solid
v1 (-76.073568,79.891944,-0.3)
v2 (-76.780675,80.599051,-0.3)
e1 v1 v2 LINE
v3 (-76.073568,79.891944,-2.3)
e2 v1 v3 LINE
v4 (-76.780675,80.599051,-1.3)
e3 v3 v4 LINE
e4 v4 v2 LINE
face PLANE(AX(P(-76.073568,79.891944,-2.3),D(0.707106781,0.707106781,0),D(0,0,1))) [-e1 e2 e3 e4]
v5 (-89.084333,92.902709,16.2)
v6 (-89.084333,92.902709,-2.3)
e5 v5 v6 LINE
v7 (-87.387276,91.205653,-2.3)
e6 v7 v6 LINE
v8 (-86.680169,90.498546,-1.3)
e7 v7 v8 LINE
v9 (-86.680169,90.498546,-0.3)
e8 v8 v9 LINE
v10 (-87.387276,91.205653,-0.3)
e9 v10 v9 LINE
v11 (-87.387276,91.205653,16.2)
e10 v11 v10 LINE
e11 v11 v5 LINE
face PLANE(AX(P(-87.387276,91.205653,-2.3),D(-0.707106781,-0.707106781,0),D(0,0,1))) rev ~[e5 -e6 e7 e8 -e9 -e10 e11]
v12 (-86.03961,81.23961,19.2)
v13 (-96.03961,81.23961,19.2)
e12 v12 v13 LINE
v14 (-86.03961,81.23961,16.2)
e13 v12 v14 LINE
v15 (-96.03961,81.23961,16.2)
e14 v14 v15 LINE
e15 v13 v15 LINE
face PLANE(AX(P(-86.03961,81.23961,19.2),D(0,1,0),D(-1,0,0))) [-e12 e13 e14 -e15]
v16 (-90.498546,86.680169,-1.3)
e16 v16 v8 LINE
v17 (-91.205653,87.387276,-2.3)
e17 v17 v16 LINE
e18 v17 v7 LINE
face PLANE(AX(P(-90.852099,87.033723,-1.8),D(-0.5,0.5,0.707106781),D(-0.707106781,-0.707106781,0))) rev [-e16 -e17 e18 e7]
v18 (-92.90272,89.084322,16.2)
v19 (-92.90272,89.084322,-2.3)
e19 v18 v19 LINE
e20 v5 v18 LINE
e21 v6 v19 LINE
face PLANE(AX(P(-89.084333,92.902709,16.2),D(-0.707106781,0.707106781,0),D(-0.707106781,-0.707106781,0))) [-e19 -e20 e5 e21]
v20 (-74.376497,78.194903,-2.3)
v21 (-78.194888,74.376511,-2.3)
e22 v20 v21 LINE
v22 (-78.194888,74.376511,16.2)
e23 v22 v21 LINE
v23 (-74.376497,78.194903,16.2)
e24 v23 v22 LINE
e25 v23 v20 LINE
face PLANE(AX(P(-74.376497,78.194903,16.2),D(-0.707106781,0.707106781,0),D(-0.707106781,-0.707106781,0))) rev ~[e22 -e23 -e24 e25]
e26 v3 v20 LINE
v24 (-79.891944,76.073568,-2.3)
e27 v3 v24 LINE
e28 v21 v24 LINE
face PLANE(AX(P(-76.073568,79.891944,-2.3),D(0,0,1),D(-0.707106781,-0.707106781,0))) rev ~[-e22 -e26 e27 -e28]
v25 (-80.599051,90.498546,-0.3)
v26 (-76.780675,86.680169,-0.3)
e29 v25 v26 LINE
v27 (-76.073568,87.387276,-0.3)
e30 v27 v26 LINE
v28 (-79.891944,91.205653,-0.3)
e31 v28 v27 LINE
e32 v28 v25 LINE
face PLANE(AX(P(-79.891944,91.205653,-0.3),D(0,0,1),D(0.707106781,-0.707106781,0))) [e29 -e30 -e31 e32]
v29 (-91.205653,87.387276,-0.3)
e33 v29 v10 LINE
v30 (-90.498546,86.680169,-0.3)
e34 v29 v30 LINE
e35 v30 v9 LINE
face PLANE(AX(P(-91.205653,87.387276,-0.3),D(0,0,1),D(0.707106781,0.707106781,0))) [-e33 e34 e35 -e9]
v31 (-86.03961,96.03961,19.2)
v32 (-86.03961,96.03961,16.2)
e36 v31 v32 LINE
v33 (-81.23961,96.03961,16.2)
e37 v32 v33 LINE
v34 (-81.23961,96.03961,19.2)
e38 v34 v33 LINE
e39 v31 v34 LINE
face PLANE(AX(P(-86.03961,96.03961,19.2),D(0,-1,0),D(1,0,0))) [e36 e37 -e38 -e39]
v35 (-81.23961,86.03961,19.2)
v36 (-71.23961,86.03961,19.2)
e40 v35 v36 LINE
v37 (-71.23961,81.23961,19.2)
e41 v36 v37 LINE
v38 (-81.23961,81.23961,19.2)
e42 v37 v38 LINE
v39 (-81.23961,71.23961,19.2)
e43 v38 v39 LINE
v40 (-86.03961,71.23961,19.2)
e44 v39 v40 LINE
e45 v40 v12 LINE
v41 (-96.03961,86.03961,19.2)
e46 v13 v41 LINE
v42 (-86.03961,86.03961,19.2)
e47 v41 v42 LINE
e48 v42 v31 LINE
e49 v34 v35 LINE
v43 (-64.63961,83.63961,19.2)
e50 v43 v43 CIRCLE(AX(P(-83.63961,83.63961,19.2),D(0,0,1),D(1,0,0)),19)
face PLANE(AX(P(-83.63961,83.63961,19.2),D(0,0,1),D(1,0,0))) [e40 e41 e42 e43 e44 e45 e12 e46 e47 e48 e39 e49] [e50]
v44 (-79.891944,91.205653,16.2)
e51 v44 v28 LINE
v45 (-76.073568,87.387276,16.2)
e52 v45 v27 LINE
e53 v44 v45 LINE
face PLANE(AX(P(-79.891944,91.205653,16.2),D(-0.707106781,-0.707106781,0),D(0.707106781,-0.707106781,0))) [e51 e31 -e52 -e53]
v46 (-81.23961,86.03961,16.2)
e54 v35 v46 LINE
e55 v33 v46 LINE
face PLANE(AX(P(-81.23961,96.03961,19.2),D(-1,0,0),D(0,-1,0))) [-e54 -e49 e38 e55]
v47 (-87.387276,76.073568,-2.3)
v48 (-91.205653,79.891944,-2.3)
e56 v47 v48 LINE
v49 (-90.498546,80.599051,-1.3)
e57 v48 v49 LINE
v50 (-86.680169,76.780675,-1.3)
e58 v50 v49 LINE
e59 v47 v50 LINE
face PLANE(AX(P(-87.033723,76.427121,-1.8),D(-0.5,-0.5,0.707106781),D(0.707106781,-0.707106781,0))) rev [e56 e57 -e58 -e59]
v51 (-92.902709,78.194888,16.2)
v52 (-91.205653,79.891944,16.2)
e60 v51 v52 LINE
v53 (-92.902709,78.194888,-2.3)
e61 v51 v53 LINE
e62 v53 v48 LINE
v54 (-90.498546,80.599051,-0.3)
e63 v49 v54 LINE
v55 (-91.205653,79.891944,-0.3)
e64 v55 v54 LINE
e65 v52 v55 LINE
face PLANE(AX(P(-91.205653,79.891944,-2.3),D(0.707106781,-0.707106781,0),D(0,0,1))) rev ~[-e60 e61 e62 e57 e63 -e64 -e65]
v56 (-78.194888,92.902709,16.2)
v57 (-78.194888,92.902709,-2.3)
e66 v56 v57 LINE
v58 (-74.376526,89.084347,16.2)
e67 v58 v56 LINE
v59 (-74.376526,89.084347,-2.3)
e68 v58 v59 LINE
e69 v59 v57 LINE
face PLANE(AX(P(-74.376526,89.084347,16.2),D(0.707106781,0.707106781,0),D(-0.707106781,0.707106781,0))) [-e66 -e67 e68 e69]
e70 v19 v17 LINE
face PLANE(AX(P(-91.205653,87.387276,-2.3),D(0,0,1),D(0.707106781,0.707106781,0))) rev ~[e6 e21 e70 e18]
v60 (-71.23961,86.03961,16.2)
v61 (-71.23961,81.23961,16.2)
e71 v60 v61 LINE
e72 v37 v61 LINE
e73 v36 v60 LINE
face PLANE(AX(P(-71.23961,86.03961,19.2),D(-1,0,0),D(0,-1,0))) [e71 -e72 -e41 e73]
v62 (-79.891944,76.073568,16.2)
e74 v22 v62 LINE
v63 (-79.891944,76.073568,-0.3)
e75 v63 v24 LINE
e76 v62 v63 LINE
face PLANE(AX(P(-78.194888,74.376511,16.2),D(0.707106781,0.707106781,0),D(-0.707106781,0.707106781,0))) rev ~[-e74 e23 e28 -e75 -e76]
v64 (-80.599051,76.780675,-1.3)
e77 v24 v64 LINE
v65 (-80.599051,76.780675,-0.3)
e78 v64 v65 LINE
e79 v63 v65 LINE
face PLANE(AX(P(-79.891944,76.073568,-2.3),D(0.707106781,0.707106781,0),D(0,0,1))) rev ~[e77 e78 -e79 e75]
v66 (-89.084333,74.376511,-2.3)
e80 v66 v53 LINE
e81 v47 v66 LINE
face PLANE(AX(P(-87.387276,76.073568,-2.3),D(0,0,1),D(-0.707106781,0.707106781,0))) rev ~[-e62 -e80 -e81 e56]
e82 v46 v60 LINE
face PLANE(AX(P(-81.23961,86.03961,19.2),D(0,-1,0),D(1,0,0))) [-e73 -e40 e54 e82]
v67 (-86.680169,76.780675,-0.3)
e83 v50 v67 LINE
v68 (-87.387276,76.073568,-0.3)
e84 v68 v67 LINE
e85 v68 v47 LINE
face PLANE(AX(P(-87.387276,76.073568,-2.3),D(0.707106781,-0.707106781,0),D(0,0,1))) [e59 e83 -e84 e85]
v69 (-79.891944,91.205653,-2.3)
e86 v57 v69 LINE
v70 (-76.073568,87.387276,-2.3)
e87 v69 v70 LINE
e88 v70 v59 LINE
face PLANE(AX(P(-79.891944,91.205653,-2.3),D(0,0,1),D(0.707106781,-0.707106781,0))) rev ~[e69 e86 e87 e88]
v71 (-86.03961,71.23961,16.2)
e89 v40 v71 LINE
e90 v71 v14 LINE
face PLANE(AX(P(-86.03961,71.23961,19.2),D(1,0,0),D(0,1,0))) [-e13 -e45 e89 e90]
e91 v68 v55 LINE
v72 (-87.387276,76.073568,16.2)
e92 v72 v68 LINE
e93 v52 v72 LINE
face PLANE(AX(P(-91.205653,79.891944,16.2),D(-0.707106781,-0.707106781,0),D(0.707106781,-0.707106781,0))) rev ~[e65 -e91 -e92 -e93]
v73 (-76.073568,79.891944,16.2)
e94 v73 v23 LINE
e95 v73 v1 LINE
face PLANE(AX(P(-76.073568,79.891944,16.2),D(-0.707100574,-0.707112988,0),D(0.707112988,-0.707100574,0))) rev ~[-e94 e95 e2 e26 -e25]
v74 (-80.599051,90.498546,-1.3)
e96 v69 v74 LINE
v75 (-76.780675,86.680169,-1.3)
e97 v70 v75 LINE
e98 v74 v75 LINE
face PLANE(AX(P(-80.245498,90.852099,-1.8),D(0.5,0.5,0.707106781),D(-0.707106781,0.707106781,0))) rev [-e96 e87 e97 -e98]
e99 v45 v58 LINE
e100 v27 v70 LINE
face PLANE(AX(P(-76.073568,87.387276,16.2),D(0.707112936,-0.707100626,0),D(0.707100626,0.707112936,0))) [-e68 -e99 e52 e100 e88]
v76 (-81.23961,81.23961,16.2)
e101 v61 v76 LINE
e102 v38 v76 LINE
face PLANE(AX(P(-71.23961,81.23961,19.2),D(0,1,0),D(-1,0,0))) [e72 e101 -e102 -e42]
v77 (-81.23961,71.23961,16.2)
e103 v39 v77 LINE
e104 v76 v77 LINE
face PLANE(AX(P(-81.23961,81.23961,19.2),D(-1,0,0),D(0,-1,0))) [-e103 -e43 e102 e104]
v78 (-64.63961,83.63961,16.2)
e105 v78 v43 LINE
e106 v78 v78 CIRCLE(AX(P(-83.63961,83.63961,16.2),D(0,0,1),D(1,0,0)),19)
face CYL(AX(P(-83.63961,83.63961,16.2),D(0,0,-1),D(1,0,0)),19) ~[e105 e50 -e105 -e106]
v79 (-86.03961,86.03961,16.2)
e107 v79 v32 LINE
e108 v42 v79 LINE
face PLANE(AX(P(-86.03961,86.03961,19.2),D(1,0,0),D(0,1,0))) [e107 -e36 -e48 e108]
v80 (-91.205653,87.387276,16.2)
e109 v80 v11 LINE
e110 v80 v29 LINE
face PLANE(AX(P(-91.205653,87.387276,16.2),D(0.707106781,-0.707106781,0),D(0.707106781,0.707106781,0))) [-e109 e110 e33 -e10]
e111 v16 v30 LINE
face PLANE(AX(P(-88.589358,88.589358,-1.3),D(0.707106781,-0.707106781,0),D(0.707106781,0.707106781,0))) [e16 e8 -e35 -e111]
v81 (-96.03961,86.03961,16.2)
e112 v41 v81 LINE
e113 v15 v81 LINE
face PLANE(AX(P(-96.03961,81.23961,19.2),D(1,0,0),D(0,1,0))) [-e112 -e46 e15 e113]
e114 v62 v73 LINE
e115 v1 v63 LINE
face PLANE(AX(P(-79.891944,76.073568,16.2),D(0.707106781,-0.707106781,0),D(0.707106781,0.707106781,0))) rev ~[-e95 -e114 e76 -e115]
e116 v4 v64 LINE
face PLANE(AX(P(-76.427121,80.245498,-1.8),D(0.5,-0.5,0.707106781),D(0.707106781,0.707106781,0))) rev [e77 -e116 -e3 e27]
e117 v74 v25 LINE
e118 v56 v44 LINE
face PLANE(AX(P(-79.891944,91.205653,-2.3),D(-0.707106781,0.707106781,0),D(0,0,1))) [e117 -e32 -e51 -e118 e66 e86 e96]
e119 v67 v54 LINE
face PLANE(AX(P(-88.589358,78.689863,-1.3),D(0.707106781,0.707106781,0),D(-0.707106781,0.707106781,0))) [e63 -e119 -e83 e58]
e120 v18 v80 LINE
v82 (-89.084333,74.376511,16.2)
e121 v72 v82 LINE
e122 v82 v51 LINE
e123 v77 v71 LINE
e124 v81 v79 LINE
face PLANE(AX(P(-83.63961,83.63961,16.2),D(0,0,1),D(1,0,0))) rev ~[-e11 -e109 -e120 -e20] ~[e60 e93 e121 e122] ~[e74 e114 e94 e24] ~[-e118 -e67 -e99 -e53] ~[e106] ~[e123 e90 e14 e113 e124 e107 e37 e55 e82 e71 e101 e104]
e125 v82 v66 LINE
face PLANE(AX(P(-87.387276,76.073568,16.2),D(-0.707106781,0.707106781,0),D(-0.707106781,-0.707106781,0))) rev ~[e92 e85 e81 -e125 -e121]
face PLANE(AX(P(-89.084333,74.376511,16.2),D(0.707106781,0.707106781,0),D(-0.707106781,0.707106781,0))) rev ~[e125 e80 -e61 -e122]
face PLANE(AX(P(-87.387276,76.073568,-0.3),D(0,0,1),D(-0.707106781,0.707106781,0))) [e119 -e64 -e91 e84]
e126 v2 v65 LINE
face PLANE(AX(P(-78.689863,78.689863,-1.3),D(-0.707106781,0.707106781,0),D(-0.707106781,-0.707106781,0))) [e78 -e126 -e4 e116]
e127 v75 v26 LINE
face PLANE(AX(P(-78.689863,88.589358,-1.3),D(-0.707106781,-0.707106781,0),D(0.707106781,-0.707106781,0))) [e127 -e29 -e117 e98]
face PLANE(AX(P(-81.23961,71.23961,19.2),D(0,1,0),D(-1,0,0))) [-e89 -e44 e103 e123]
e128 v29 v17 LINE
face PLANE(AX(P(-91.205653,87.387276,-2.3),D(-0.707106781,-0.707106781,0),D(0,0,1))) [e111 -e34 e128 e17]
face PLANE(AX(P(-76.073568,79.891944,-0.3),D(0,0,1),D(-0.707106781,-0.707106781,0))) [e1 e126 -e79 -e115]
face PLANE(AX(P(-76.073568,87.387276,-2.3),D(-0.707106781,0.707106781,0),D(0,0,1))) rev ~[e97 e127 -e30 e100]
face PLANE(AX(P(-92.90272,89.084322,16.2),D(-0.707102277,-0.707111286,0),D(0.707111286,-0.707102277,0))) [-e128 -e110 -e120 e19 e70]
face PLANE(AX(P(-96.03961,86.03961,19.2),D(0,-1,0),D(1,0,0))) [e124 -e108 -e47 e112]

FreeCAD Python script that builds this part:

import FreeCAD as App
import Part
import Sketcher
Q = App.Units.Quantity


def edges_at(feature, points):
    """Names of the edges that pass closest to the given points."""
    edges = feature.Shape.Edges
    near = lambda p: min(range(len(edges)), key=lambda i: edges[i].distToShape(Part.Vertex(*p))[0])
    return sorted({f"Edge{near(p) + 1}" for p in points})


def add_polygon(sketch, points):
    """Adds a closed chain of lines whose ends are joined by coincident constraints."""
    first, n = sketch.GeometryCount, len(points)
    for a, b in zip(points, points[1:] + points[:1]):
        sketch.addGeometry(Part.LineSegment(App.Vector(*a, 0), App.Vector(*b, 0)), False)
    for i in range(n):
        sketch.addConstraint(Sketcher.Constraint("Coincident", first + i, 2, first + (i + 1) % n, 1))

doc = App.newDocument("Part")
body = doc.addObject("PartDesign::Body", "Body")

sketch1 = body.newObject("Sketcher::SketchObject", "Sketch")
sketch1.AttachmentSupport = (doc.getObject("XY_Plane"), [""])
sketch1.MapMode = "FlatFace"
sketch1.AttachmentOffset = App.Placement(App.Vector(0, 0, 16.2), App.Rotation())
sketch1.addGeometry(Part.Circle(App.Vector(-84, 84, 0), App.Vector(0, 0, 1), 19), False)
sketch1.addConstraint([
    Sketcher.Constraint("Diameter", 0, Q("38 mm")),
    Sketcher.Constraint("DistanceX", 0, 3, -1, 1, Q("83.63961 mm")),
    Sketcher.Constraint("DistanceY", -1, 1, 0, 3, Q("83.63961 mm")),
])
pad1 = body.newObject("PartDesign::Pad", "Pad")
pad1.Profile = sketch1
pad1.Length = 3

sketch2 = body.newObject("Sketcher::SketchObject", "Sketch001")
sketch2.AttachmentSupport = (doc.getObject("XY_Plane"), [""])
sketch2.MapMode = "FlatFace"
sketch2.AttachmentOffset = App.Placement(App.Vector(0, 0, 16.2), App.Rotation())
add_polygon(sketch2, [(-92.9, 78.2), (-91.2, 79.9), (-87.4, 76.1), (-89.1, 74.4)])
add_polygon(sketch2, [(-79.9, 76.1), (-76.1, 79.9), (-74.4, 78.2), (-78.2, 74.4)])
add_polygon(sketch2, [(-91.2, 87.4), (-92.9, 89.1), (-89.1, 92.9), (-87.4, 91.2)])
add_polygon(sketch2, [(-76.1, 87.4), (-79.9, 91.2), (-78.2, 92.9), (-74.4, 89.1)])
sketch2.addConstraint([
    Sketcher.Constraint("Perpendicular", 0, 1),
    Sketcher.Constraint("Perpendicular", 1, 2),
    Sketcher.Constraint("Perpendicular", 2, 3),
    Sketcher.Constraint("Perpendicular", 3, 4),
    Sketcher.Constraint("Parallel", 4, 6),
    Sketcher.Constraint("Perpendicular", 6, 7),
    Sketcher.Constraint("Perpendicular", 7, 9),
    Sketcher.Constraint("Perpendicular", 9, 10),
    Sketcher.Constraint("Perpendicular", 10, 11),
    Sketcher.Constraint("Perpendicular", 11, 12),
    Sketcher.Constraint("Perpendicular", 12, 13),
    Sketcher.Constraint("Perpendicular", 13, 14),
    Sketcher.Constraint("Perpendicular", 5, 15),
    Sketcher.Constraint("Horizontal", 0, 2, 4, 2),
    Sketcher.Constraint("Horizontal", 2, 2, 6, 2),
    Sketcher.Constraint("Horizontal", 1, 2, 7, 2),
    Sketcher.Constraint("Horizontal", 10, 2, 12, 2),
    Sketcher.Constraint("Horizontal", 9, 2, 13, 2),
    Sketcher.Constraint("Horizontal", 11, 2, 15, 2),
    Sketcher.Constraint("Vertical", 2, 2, 9, 2),
    Sketcher.Constraint("Vertical", 1, 2, 10, 2),
    Sketcher.Constraint("Vertical", 0, 2, 11, 2),
    Sketcher.Constraint("Vertical", 7, 2, 12, 2),
    Sketcher.Constraint("Vertical", 6, 2, 13, 2),
    Sketcher.Constraint("Distance", 0, Q("2.4 mm")),
    Sketcher.Constraint("Distance", 1, Q("5.4 mm")),
    Sketcher.Constraint("Distance", 6, Q("5.400021 mm")),
    Sketcher.Constraint("DistanceY", -1, 1, 2, 2, Q("74.376511 mm")),
    Sketcher.Constraint("DistanceX", 3, 2, -1, 1, Q("92.902709 mm")),
    Sketcher.Constraint("DistanceX", 6, 2, -1, 1, Q("78.194888 mm")),
    Sketcher.Constraint("DistanceX", 8, 2, -1, 1, Q("92.90272 mm")),
    Sketcher.Constraint("DistanceY", -1, 1, 8, 2, Q("89.084322 mm")),
])
pad2 = body.newObject("PartDesign::Pad", "Pad001")
pad2.Profile = sketch2
pad2.Length = 18.5
pad2.Reversed = True

sketch3 = body.newObject("Sketcher::SketchObject", "Sketch002")
sketch3.Placement = App.Placement(App.Vector(-5.656854, -5.656854, 0), App.Rotation(App.Vector(-0.707106781, 0.707106781, 0), App.Vector(0, 0, 0.999999999), App.Vector(0.707106781, 0.707106781, 0), "ZXY"))
add_polygon(sketch3, [(115.6, -0.3), (115.6, -2.3), (121, -2.3), (121, -0.3)])
sketch3.addConstraint([
    Sketcher.Constraint("Vertical", 0),
    Sketcher.Constraint("Horizontal", 1),
    Sketcher.Constraint("Vertical", 2),
    Sketcher.Constraint("Horizontal", 3),
    Sketcher.Constraint("DistanceY", 0, 2, 0, 1, Q("2 mm")),
    Sketcher.Constraint("DistanceX", 1, 1, 1, 2, Q("5.4 mm")),
    Sketcher.Constraint("DistanceY", 0, 2, -1, 1, Q("2.3 mm")),
    Sketcher.Constraint("DistanceX", -1, 1, 0, 2, Q("115.584271 mm")),
])
pad3 = body.newObject("PartDesign::Pad", "Pad002")
pad3.Profile = sketch3
pad3.Length = 1

sketch4 = body.newObject("Sketcher::SketchObject", "Sketch003")
sketch4.Placement = App.Placement(App.Vector(-89.296465, 89.296465, 0), App.Rotation(App.Vector(0.707106781, 0.707106781, 0), App.Vector(0, 0, 0.999999999), App.Vector(0.707106781, -0.707106781, 0), "ZXY"))
add_polygon(sketch4, [(-2.7, -0.3), (-2.7, -2.3), (2.7, -2.3), (2.7, -0.3)])
sketch4.addConstraint([
    Sketcher.Constraint("Vertical", 0),
    Sketcher.Constraint("Horizontal", 1),
    Sketcher.Constraint("Vertical", 2),
    Sketcher.Constraint("Horizontal", 3),
    Sketcher.Constraint("DistanceY", 0, 2, 0, 1, Q("2 mm")),
    Sketcher.Constraint("DistanceX", 1, 1, 1, 2, Q("5.4 mm")),
    Sketcher.Constraint("DistanceX", 0, 2, -1, 1, Q("2.7 mm")),
    Sketcher.Constraint("DistanceY", 0, 2, -1, 1, Q("2.3 mm")),
])
pad4 = body.newObject("PartDesign::Pad", "Pad003")
pad4.Profile = sketch4
pad4.Length = 1

sketch5 = body.newObject("Sketcher::SketchObject", "Sketch004")
sketch5.Placement = App.Placement(App.Vector(-77.982756, 77.982756, 0), App.Rotation(App.Vector(-0.707106781, -0.707106781, 0), App.Vector(0, 0, 0.999999999), App.Vector(-0.707106781, 0.707106781, 0), "ZXY"))
add_polygon(sketch5, [(-2.7, -0.3), (-2.7, -2.3), (2.7, -2.3), (2.7, -0.3)])
sketch5.addConstraint([
    Sketcher.Constraint("Vertical", 0),
    Sketcher.Constraint("Horizontal", 1),
    Sketcher.Constraint("Vertical", 2),
    Sketcher.Constraint("Horizontal", 3),
    Sketcher.Constraint("DistanceY", 0, 2, 0, 1, Q("2 mm")),
    Sketcher.Constraint("DistanceX", 1, 1, 1, 2, Q("5.4 mm")),
    Sketcher.Constraint("DistanceX", 0, 2, -1, 1, Q("2.7 mm")),
    Sketcher.Constraint("DistanceY", 0, 2, -1, 1, Q("2.3 mm")),
])
pad5 = body.newObject("PartDesign::Pad", "Pad004")
pad5.Profile = sketch5
pad5.Length = 1

sketch6 = body.newObject("Sketcher::SketchObject", "Sketch005")
sketch6.Placement = App.Placement(App.Vector(5.656854, 5.656854, 0), App.Rotation(App.Vector(0.707106781, -0.707106781, 0), App.Vector(0, 0, 0.999999999), App.Vector(-0.707106781, -0.707106781, 0), "ZXY"))
add_polygon(sketch6, [(-121, -0.3), (-121, -2.3), (-115.6, -2.3), (-115.6, -0.3)])
sketch6.addConstraint([
    Sketcher.Constraint("Vertical", 0),
    Sketcher.Constraint("Horizontal", 1),
    Sketcher.Constraint("Vertical", 2),
    Sketcher.Constraint("Horizontal", 3),
    Sketcher.Constraint("DistanceY", 0, 2, 0, 1, Q("2 mm")),
    Sketcher.Constraint("DistanceX", 1, 1, 1, 2, Q("5.4 mm")),
    Sketcher.Constraint("DistanceY", 0, 2, -1, 1, Q("2.3 mm")),
    Sketcher.Constraint("DistanceX", 0, 2, -1, 1, Q("120.984271 mm")),
])
pad6 = body.newObject("PartDesign::Pad", "Pad005")
pad6.Profile = sketch6
pad6.Length = 1

sketch7 = body.newObject("Sketcher::SketchObject", "Sketch006")
sketch7.AttachmentSupport = (doc.getObject("XY_Plane"), [""])
sketch7.MapMode = "FlatFace"
sketch7.AttachmentOffset = App.Placement(App.Vector(0, 0, 19.2), App.Rotation())
add_polygon(sketch7, [(-81.2, 96), (-86, 96), (-86, 86), (-96, 86), (-96, 81.2), (-86, 81.2), (-86, 71.2), (-81.2, 71.2), (-81.2, 81.2), (-71.2, 81.2), (-71.2, 86), (-81.2, 86)])
sketch7.addConstraint([
    Sketcher.Constraint("Horizontal", 0),
    Sketcher.Constraint("Vertical", 1),
    Sketcher.Constraint("Horizontal", 2),
    Sketcher.Constraint("Vertical", 3),
    Sketcher.Constraint("Horizontal", 4),
    Sketcher.Constraint("Vertical", 5),
    Sketcher.Constraint("Horizontal", 6),
    Sketcher.Constraint("Vertical", 7),
    Sketcher.Constraint("Horizontal", 8),
    Sketcher.Constraint("Vertical", 9),
    Sketcher.Constraint("Horizontal", 10),
    Sketcher.Constraint("Vertical", 11),
    Sketcher.Constraint("Horizontal", 4, 2, 7, 2),
    Sketcher.Constraint("Horizontal", 2, 2, 9, 2),
    Sketcher.Constraint("Vertical", 1, 2, 4, 2),
    Sketcher.Constraint("Vertical", 7, 2, 10, 2),
    Sketcher.Constraint("Equal", 4, 8),
    Sketcher.Constraint("Equal", 10, 1),
    Sketcher.Constraint("Equal", 6, 3),
    Sketcher.Constraint("Equal", 1, 5),
    Sketcher.Constraint("DistanceX", 2, 2, 2, 1, Q("10 mm")),
    Sketcher.Constraint("DistanceX", 0, 2, 0, 1, Q("4.8 mm")),
    Sketcher.Constraint("DistanceX", 0, 2, -1, 1, Q("86.03961 mm")),
    Sketcher.Constraint("DistanceY", -1, 1, 0, 2, Q("96.03961 mm")),
])
pocket1 = body.newObject("PartDesign::Pocket", "Pocket")
pocket1.Profile = sketch7
pocket1.Length = 5
doc.recompute()

chamfer = body.newObject("PartDesign::Chamfer", "Chamfer")
chamfer.Base = (pocket1, edges_at(pocket1, [(-88.589, 88.589, -2.3)]))
chamfer.Size = 1
doc.recompute()

chamfer2 = body.newObject("PartDesign::Chamfer", "Chamfer001")
chamfer2.Base = (chamfer, edges_at(chamfer, [(-78.69, 88.589, -2.3)]))
chamfer2.Size = 1
doc.recompute()

chamfer3 = body.newObject("PartDesign::Chamfer", "Chamfer002")
chamfer3.Base = (chamfer2, edges_at(chamfer2, [(-88.589, 78.69, -2.3)]))
chamfer3.Size = 1
doc.recompute()

chamfer4 = body.newObject("PartDesign::Chamfer", "Chamfer003")
chamfer4.Base = (chamfer3, edges_at(chamfer3, [(-78.69, 78.69, -2.3)]))
chamfer4.Size = 1

doc.recompute()
